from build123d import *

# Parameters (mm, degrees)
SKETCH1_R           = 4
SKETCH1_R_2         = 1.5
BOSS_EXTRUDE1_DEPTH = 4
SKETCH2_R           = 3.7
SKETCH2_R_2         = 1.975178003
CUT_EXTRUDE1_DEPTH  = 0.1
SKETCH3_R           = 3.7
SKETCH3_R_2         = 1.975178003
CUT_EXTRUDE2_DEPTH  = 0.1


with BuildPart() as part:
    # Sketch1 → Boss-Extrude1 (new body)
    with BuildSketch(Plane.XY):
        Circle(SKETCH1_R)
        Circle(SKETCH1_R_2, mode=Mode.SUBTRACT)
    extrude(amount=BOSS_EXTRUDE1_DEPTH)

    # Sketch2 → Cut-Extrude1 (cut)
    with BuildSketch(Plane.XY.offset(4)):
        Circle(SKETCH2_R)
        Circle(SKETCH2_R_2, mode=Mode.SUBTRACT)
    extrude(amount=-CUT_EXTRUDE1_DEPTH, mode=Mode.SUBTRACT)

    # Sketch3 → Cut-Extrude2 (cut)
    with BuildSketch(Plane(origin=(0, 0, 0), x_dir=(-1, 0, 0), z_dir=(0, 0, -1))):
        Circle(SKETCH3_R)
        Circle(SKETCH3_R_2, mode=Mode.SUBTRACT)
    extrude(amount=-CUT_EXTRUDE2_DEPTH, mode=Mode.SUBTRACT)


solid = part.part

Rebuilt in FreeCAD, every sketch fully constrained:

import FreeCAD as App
import Part
import Sketcher

V = App.Vector

doc = App.newDocument("Part")
params = doc.addObject("Spreadsheet::Sheet", "Params")
for row, (alias, value) in enumerate([
    ("sketch1_diameter", "8 mm"),
    ("sketch1_diameter2", "3 mm"),
    ("pad1_length", "4 mm"),
    ("sketch2_diameter", "7.4 mm"),
    ("pocket1_length", "0.1 mm"),
    ("sketch3_diameter", "7.4 mm"),
    ("pocket2_length", "0.1 mm"),
], start=1):
    params.set(f"A{row}", alias)
    params.set(f"B{row}", "=" + value)
    params.setAlias(f"B{row}", alias)

body = doc.addObject("PartDesign::Body", "Body")

# Sketch on XY plane
sketch1 = body.newObject("Sketcher::SketchObject", "Sketch")
sketch1.AttachmentSupport = (doc.getObject("XY_Plane"), [""])
sketch1.MapMode = "FlatFace"
sketch1.addGeometry(Part.Circle(V(0, 0, 0), V(0, 0, 1), 4), False)
sketch1.addGeometry(Part.Circle(V(0, 0, 0), V(0, 0, 1), 1.5), False)
sketch1.addConstraint(Sketcher.Constraint("Coincident", 0, 3, -1, 1))
sketch1.addConstraint(Sketcher.Constraint("Coincident", 1, 3, -1, 1))
sketch1.addConstraint(Sketcher.Constraint("Diameter", 0, 8.0))
sketch1.addConstraint(Sketcher.Constraint("Diameter", 1, 3.0))
sketch1.setExpression("Constraints[2]", "Params.sketch1_diameter")
sketch1.setExpression("Constraints[3]", "Params.sketch1_diameter2")
pad1 = body.newObject("PartDesign::Pad", "Pad")
pad1.Profile = sketch1
pad1.setExpression("Length", "Params.pad1_length")

# Sketch on XY plane
sketch2 = body.newObject("Sketcher::SketchObject", "Sketch001")
sketch2.AttachmentSupport = (doc.getObject("XY_Plane"), [""])
sketch2.MapMode = "FlatFace"
sketch2.AttachmentOffset = App.Placement(V(0, 0, 4), App.Rotation())
sketch2.addGeometry(Part.Circle(V(0, 0, 0), V(0, 0, 1), 3.7), False)
sketch2.addGeometry(Part.Circle(V(0, 0, 0), V(0, 0, 1), 2), False)
sketch2.addConstraint(Sketcher.Constraint("Coincident", 0, 3, -1, 1))
sketch2.addConstraint(Sketcher.Constraint("Coincident", 1, 3, -1, 1))
sketch2.addConstraint(Sketcher.Constraint("Diameter", 0, 7.4))
sketch2.addConstraint(Sketcher.Constraint("Diameter", 1, 3.950356))
sketch2.setExpression("Constraints[2]", "Params.sketch2_diameter")
pocket1 = body.newObject("PartDesign::Pocket", "Pocket")
pocket1.Profile = sketch2
pocket1.setExpression("Length", "Params.pocket1_length")

# Sketch on XY plane
sketch3 = body.newObject("Sketcher::SketchObject", "Sketch002")
sketch3.AttachmentSupport = (doc.getObject("XY_Plane"), [""])
sketch3.MapMode = "FlatFace"
sketch3.addGeometry(Part.Circle(V(0, 0, 0), V(0, 0, 1), 3.7), False)
sketch3.addGeometry(Part.Circle(V(0, 0, 0), V(0, 0, 1), 2), False)
sketch3.addConstraint(Sketcher.Constraint("Coincident", 0, 3, -1, 1))
sketch3.addConstraint(Sketcher.Constraint("Coincident", 1, 3, -1, 1))
sketch3.addConstraint(Sketcher.Constraint("Diameter", 0, 7.4))
sketch3.addConstraint(Sketcher.Constraint("Diameter", 1, 3.950356))
sketch3.setExpression("Constraints[2]", "Params.sketch3_diameter")
pocket2 = body.newObject("PartDesign::Pocket", "Pocket001")
pocket2.Profile = sketch3
pocket2.setExpression("Length", "Params.pocket2_length")
pocket2.Reversed = True

doc.recompute()
